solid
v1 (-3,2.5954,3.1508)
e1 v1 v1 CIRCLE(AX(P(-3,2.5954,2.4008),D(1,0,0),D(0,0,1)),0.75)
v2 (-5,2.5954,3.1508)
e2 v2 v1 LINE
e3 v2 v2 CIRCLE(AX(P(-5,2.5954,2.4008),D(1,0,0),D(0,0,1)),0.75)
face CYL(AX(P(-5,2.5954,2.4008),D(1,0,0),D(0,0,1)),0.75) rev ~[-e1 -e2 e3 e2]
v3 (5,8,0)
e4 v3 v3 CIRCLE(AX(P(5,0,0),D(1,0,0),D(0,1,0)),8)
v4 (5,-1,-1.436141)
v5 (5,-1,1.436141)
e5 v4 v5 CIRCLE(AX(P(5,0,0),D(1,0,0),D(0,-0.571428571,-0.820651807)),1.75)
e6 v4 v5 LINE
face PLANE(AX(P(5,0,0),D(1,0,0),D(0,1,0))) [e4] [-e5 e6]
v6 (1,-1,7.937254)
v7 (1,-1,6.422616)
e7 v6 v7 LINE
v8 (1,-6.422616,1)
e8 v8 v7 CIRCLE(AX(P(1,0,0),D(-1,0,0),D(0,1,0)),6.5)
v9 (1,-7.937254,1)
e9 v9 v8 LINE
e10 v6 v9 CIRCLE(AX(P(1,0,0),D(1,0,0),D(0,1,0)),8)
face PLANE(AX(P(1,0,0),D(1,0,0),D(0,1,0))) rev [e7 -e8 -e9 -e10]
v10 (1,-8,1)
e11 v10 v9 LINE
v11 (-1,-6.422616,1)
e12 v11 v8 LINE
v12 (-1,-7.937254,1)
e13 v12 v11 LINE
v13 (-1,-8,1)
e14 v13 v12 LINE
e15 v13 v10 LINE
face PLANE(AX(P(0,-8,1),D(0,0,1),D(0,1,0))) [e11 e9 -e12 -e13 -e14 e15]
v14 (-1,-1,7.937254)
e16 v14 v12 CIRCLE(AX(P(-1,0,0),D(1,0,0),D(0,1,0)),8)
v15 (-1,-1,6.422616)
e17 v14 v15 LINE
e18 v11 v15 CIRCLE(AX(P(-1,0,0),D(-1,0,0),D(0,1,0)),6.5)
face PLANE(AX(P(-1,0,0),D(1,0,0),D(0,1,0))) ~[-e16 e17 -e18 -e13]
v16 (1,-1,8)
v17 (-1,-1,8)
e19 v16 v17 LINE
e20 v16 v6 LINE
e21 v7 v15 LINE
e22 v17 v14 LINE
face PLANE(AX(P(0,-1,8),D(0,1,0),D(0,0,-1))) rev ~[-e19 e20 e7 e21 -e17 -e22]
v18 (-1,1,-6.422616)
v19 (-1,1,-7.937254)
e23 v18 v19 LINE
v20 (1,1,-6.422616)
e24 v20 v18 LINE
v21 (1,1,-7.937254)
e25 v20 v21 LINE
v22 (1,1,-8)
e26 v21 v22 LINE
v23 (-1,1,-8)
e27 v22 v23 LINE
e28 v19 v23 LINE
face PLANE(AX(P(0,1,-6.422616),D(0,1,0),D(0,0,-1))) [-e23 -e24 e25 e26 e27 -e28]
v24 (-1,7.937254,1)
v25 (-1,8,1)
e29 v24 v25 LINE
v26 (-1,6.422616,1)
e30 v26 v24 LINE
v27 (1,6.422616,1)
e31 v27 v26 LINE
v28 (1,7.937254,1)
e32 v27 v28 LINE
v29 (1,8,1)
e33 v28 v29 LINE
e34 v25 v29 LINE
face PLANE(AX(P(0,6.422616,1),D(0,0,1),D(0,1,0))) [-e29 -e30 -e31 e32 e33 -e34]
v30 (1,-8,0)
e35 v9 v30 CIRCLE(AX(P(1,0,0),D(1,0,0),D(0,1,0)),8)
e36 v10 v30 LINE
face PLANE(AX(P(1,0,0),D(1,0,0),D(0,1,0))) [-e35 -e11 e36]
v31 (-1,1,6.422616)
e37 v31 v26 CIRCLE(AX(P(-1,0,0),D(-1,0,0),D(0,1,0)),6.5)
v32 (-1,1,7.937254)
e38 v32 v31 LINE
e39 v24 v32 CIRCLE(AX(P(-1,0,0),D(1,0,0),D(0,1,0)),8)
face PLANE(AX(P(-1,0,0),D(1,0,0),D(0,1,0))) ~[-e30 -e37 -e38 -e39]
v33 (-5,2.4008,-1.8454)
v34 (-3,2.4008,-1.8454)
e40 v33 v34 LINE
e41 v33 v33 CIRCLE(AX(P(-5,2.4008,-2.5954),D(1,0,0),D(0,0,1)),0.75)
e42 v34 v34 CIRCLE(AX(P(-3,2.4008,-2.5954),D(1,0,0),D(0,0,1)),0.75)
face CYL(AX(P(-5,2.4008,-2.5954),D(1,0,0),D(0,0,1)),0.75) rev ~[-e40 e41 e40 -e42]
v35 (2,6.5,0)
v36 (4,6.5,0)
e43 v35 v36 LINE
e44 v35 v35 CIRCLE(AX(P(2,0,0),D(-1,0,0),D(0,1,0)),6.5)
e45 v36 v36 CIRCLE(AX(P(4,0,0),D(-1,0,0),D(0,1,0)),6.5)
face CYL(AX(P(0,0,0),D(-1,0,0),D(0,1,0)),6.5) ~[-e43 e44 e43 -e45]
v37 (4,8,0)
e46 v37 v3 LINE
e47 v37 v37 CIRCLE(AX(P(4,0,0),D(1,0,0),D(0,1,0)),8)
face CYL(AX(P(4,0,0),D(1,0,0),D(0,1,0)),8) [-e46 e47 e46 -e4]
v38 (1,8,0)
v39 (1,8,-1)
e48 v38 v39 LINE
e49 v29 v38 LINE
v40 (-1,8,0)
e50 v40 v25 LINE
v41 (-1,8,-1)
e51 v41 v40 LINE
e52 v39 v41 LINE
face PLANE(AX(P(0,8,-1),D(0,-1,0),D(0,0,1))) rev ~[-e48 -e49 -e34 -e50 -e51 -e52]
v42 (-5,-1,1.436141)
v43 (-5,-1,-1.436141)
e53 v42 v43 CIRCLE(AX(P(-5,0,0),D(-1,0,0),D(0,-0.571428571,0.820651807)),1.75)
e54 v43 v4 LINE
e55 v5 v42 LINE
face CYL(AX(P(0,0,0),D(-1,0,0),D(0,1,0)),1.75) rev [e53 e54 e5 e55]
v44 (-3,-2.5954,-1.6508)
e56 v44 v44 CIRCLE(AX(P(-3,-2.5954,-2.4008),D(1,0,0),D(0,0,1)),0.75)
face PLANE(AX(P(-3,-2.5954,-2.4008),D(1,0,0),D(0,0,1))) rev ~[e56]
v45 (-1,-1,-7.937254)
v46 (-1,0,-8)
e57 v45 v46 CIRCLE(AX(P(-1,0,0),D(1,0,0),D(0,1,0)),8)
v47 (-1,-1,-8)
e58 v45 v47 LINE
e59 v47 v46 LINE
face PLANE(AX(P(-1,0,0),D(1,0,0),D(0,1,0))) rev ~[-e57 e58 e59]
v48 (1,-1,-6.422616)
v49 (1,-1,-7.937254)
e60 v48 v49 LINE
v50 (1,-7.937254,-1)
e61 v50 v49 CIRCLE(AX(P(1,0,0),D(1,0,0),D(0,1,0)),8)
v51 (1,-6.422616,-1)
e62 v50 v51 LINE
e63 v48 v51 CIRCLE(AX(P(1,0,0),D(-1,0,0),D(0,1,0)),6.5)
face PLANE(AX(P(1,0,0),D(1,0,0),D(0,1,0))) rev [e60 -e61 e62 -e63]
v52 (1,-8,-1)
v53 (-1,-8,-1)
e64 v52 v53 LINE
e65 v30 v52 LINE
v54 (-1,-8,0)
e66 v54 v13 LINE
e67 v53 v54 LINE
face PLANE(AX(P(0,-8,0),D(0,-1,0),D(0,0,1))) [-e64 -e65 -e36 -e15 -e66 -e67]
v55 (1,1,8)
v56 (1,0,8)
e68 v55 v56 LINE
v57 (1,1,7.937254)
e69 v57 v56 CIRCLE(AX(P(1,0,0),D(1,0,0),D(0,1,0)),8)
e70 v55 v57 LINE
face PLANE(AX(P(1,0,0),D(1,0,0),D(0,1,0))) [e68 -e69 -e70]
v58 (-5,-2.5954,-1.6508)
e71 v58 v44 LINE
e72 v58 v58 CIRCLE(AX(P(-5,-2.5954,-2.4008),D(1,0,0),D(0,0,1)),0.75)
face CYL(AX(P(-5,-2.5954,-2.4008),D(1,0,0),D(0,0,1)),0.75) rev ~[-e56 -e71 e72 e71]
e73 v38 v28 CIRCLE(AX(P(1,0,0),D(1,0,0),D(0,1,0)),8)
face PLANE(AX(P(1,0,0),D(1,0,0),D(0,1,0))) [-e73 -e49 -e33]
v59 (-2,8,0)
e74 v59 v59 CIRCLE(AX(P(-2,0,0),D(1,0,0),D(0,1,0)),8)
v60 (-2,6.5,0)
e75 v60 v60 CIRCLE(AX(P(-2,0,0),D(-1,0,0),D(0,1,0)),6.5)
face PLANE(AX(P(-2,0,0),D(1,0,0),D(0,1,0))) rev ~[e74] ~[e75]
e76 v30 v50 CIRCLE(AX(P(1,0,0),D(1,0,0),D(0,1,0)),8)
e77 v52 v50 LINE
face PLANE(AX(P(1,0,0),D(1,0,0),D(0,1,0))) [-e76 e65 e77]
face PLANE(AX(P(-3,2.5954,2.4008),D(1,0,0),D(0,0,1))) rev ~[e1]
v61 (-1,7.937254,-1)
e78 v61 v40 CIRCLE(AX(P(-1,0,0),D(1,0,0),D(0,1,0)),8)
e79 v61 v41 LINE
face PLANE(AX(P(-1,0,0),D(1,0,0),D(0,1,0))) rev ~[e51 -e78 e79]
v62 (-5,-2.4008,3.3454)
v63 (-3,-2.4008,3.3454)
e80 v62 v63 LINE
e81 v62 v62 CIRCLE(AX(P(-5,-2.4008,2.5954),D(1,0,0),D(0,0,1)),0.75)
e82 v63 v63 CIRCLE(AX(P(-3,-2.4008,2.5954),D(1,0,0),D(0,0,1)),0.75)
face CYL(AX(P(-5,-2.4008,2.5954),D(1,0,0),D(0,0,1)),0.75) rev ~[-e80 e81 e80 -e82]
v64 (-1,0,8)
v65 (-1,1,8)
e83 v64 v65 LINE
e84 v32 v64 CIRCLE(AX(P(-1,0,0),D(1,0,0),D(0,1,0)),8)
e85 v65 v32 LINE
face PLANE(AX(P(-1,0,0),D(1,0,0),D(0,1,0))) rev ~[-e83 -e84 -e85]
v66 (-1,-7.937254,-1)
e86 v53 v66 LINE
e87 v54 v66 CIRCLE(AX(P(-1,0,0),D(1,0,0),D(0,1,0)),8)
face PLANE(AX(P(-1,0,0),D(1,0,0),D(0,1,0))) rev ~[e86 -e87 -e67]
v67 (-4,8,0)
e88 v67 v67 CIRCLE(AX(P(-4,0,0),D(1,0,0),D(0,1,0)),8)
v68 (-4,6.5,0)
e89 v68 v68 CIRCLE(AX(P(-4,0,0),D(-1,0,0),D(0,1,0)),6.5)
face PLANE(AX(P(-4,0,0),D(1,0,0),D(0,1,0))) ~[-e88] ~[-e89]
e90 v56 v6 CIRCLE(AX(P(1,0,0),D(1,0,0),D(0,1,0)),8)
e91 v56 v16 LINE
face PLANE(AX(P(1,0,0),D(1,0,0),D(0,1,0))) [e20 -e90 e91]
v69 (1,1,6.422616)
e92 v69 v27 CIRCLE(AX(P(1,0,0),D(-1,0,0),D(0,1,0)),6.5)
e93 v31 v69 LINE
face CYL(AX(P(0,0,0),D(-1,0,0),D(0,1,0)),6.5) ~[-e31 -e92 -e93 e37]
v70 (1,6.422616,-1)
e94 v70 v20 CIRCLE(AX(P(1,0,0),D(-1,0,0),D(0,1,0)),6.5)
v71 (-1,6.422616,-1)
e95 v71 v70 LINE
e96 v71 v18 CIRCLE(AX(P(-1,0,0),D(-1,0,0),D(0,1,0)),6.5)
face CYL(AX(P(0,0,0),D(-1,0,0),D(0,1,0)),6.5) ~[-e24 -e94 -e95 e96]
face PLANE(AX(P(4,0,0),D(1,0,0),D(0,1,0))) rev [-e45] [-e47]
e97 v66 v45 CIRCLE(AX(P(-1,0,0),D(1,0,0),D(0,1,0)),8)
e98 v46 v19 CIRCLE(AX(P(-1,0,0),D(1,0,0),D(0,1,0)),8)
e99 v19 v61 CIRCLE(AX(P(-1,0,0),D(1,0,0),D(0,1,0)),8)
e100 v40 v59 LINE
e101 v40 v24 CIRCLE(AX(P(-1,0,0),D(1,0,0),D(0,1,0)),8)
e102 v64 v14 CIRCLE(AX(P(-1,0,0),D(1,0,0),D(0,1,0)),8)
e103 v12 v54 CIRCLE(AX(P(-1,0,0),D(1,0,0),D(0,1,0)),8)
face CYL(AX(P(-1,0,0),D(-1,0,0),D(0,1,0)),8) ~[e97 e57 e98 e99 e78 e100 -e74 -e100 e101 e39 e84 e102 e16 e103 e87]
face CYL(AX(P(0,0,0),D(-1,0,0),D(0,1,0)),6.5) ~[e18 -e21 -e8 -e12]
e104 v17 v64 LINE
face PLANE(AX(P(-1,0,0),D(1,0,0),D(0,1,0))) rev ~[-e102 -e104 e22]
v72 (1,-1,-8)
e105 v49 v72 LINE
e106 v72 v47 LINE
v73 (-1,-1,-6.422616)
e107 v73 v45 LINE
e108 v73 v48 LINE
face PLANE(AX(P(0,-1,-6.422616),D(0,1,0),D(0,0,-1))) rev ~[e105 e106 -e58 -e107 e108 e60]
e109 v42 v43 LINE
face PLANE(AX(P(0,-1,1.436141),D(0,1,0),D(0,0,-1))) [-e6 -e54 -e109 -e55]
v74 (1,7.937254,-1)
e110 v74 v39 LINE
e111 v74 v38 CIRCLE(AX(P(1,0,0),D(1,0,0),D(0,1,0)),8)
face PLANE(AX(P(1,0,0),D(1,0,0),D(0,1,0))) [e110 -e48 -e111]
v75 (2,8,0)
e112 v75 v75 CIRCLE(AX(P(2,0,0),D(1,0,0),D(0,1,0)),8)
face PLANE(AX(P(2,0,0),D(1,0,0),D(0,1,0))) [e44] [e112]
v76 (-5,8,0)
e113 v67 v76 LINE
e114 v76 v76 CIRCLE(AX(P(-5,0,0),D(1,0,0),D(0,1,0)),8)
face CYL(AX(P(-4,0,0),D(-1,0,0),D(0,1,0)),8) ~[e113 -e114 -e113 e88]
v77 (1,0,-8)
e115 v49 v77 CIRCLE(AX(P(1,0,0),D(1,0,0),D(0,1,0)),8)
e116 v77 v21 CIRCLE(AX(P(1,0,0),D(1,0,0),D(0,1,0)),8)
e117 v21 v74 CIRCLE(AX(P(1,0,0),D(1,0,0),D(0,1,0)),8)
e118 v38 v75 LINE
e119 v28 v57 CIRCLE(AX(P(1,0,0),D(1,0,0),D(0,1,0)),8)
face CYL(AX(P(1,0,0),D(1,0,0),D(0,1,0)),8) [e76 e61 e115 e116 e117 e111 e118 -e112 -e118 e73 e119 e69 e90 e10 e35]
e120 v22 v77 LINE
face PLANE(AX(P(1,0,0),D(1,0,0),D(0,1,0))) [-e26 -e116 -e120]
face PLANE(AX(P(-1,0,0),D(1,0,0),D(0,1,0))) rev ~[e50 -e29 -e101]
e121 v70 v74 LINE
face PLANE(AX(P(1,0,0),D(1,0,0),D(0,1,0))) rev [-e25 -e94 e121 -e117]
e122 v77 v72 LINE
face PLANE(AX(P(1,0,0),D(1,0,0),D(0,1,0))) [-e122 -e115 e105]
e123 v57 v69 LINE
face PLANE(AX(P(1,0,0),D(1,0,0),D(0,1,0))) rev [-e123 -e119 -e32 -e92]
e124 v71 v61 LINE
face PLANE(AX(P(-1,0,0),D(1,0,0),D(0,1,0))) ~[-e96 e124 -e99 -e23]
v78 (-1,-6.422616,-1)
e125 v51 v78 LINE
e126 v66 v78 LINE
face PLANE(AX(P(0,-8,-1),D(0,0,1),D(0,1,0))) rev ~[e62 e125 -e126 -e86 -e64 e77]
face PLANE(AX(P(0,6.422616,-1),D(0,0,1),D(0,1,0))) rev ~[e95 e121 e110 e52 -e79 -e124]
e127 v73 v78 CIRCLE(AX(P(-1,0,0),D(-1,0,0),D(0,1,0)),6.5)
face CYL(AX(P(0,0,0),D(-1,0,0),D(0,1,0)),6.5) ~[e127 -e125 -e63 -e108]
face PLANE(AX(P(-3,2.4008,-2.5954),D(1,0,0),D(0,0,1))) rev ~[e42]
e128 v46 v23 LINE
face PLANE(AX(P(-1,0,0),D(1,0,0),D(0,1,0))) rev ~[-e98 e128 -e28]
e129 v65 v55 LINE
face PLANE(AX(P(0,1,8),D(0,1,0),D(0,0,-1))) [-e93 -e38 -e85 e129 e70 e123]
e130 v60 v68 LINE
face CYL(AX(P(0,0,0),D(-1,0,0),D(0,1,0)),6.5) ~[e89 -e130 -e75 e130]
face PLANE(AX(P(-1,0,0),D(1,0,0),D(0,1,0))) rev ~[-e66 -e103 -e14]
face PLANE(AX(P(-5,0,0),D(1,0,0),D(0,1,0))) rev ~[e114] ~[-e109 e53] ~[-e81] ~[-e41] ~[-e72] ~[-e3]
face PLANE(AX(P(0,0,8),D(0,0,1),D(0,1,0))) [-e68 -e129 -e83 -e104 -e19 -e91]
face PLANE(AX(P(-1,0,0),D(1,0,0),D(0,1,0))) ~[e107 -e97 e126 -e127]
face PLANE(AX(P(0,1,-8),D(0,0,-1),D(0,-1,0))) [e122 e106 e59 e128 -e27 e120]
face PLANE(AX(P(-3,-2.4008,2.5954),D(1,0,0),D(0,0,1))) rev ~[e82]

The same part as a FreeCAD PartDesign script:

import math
import FreeCAD as App
import Part
import Sketcher

V = App.Vector
Q = App.Units.Quantity


def add_polygon(sketch, points):
    """Adds a closed chain of lines whose ends are joined by coincident constraints."""
    first, n = sketch.GeometryCount, len(points)
    for a, b in zip(points, points[1:] + points[:1]):
        sketch.addGeometry(Part.LineSegment(App.Vector(*a, 0), App.Vector(*b, 0)), False)
    for i in range(n):
        sketch.addConstraint(Sketcher.Constraint("Coincident", first + i, 2, first + (i + 1) % n, 1))

doc = App.newDocument("Part")
body = doc.addObject("PartDesign::Body", "Body")

sketch1 = body.newObject("Sketcher::SketchObject", "Sketch")
sketch1.AttachmentSupport = (doc.getObject("YZ_Plane"), [""])
sketch1.MapMode = "FlatFace"
sketch1.addGeometry([
    Part.Circle(V(0, 0, 0), V(0, 0, 1), 6.5),
    Part.LineSegment(V(-1, -1.4, 0), V(-1, 1.4, 0)),
    Part.ArcOfCircle(Part.Circle(V(0, 0, 0), V(0, 0, 1), 1.8), math.radians(-125), math.radians(125)),
], False)
sketch1.addConstraint([
    Sketcher.Constraint("Coincident", 1, 1, 2, 1),
    Sketcher.Constraint("Coincident", 2, 2, 1, 2),
    Sketcher.Constraint("Vertical", 1),
    Sketcher.Constraint("Coincident", 0, 3, -1, 1),
    Sketcher.Constraint("Coincident", 2, 3, -1, 1),
    Sketcher.Constraint("Diameter", 0, Q("13 mm")),
    Sketcher.Constraint("Radius", 2, Q("1.75 mm")),
    Sketcher.Constraint("DistanceX", 1, 1, -1, 1, Q("1 mm")),
])
pad1 = body.newObject("PartDesign::Pad", "Pad")
pad1.Profile = sketch1
pad1.Length = 10
pad1.Midplane = True

sketch2 = body.newObject("Sketcher::SketchObject", "Sketch001")
sketch2.AttachmentSupport = (doc.getObject("YZ_Plane"), [""])
sketch2.MapMode = "FlatFace"
sketch2.addGeometry([
    Part.LineSegment(V(8, -1, 0), V(8, 1, 0)),
    Part.LineSegment(V(8, 1, 0), V(6.4, 1, 0)),
    Part.ArcOfCircle(Part.Circle(V(0, 0, 0), V(0, 0, 1), 6.5), math.radians(-8.85), math.radians(8.85)),
    Part.LineSegment(V(6.4, -1, 0), V(8, -1, 0)),
    Part.LineSegment(V(1, 6.4, 0), V(1, 8, 0)),
    Part.LineSegment(V(1, 8, 0), V(-1, 8, 0)),
    Part.LineSegment(V(-1, 8, 0), V(-1, 6.4, 0)),
    Part.ArcOfCircle(Part.Circle(V(0, 0, 0), V(0, 0, 1), 6.5), math.radians(81.15), math.radians(98.85)),
    Part.LineSegment(V(1, -8, 0), V(1, -6.4, 0)),
    Part.ArcOfCircle(Part.Circle(V(0, 0, 0), V(0, 0, 1), 6.5), math.radians(-98.85), math.radians(-81.15)),
    Part.LineSegment(V(-1, -6.4, 0), V(-1, -8, 0)),
    Part.LineSegment(V(-1, -8, 0), V(1, -8, 0)),
    Part.LineSegment(V(-6.4, 1, 0), V(-8, 1, 0)),
    Part.LineSegment(V(-8, 1, 0), V(-8, -1, 0)),
    Part.LineSegment(V(-8, -1, 0), V(-6.4, -1, 0)),
    Part.ArcOfCircle(Part.Circle(V(0, 0, 0), V(0, 0, 1), 6.5), math.radians(171.15), math.radians(188.85)),
], False)
sketch2.addConstraint([
    Sketcher.Constraint("Coincident", 0, 2, 1, 1),
    Sketcher.Constraint("Coincident", 1, 2, 2, 2),
    Sketcher.Constraint("Coincident", 2, 1, 3, 1),
    Sketcher.Constraint("Coincident", 3, 2, 0, 1),
    Sketcher.Constraint("Coincident", 4, 2, 5, 1),
    Sketcher.Constraint("Coincident", 5, 2, 6, 1),
    Sketcher.Constraint("Coincident", 6, 2, 7, 2),
    Sketcher.Constraint("Coincident", 7, 1, 4, 1),
    Sketcher.Constraint("Coincident", 8, 2, 9, 2),
    Sketcher.Constraint("Coincident", 9, 1, 10, 1),
    Sketcher.Constraint("Coincident", 10, 2, 11, 1),
    Sketcher.Constraint("Coincident", 11, 2, 8, 1),
    Sketcher.Constraint("Coincident", 12, 2, 13, 1),
    Sketcher.Constraint("Coincident", 13, 2, 14, 1),
    Sketcher.Constraint("Coincident", 14, 2, 15, 2),
    Sketcher.Constraint("Coincident", 15, 1, 12, 1),
    Sketcher.Constraint("Vertical", 0),
    Sketcher.Constraint("Horizontal", 1),
    Sketcher.Constraint("Horizontal", 3),
    Sketcher.Constraint("Vertical", 4),
    Sketcher.Constraint("Horizontal", 5),
    Sketcher.Constraint("Vertical", 6),
    Sketcher.Constraint("Vertical", 8),
    Sketcher.Constraint("Vertical", 10),
    Sketcher.Constraint("Horizontal", 11),
    Sketcher.Constraint("Horizontal", 12),
    Sketcher.Constraint("Vertical", 13),
    Sketcher.Constraint("Horizontal", 14),
    Sketcher.Constraint("Coincident", 2, 3, -1, 1),
    Sketcher.Constraint("Coincident", 7, 3, -1, 1),
    Sketcher.Constraint("Coincident", 9, 3, -1, 1),
    Sketcher.Constraint("Coincident", 15, 3, -1, 1),
    Sketcher.Constraint("Equal", 2, 7),
    Sketcher.Constraint("Equal", 7, 9),
    Sketcher.Constraint("Equal", 9, 15),
    Sketcher.Constraint("Symmetric", 4, 2, 10, 2, -1, 1),
    Sketcher.Constraint("Symmetric", 3, 2, 12, 2, -1, 1),
    Sketcher.Constraint("Horizontal", 6, 2, 7, 1),
    Sketcher.Constraint("Horizontal", 8, 2, 9, 1),
    Sketcher.Constraint("Horizontal", 1, 2, 12, 2),
    Sketcher.Constraint("Horizontal", 3, 2, 13, 2),
    Sketcher.Constraint("Equal", 11, 0),
    Sketcher.Constraint("Equal", 14, 4),
    Sketcher.Constraint("Radius", 2, Q("6.5 mm")),
    Sketcher.Constraint("DistanceX", 5, 2, 5, 1, Q("2 mm")),
    Sketcher.Constraint("DistanceX", -1, 1, 0, 2, Q("8 mm")),
])
pad2 = body.newObject("PartDesign::Pad", "Pad001")
pad2.Profile = sketch2
pad2.Length = 2
pad2.Midplane = True

sketch3 = body.newObject("Sketcher::SketchObject", "Sketch002")
sketch3.AttachmentSupport = (doc.getObject("XY_Plane"), [""])
sketch3.MapMode = "FlatFace"
add_polygon(sketch3, [(4, 6), (5, 6), (5, 8), (4, 8)])
add_polygon(sketch3, [(1, 8), (1, 6), (2, 6), (2, 8)])
add_polygon(sketch3, [(-2, 6), (-1, 6), (-1, 8), (-2, 8)])
add_polygon(sketch3, [(-5, 8), (-5, 6), (-4, 6), (-4, 8)])
sketch3.addConstraint([
    Sketcher.Constraint("Horizontal", 0),
    Sketcher.Constraint("Vertical", 1),
    Sketcher.Constraint("Horizontal", 2),
    Sketcher.Constraint("Vertical", 3),
    Sketcher.Constraint("Vertical", 4),
    Sketcher.Constraint("Horizontal", 5),
    Sketcher.Constraint("Vertical", 6),
    Sketcher.Constraint("Horizontal", 7),
    Sketcher.Constraint("Horizontal", 8),
    Sketcher.Constraint("Vertical", 9),
    Sketcher.Constraint("Horizontal", 10),
    Sketcher.Constraint("Vertical", 11),
    Sketcher.Constraint("Vertical", 12),
    Sketcher.Constraint("Horizontal", 13),
    Sketcher.Constraint("Vertical", 14),
    Sketcher.Constraint("Horizontal", 15),
    Sketcher.Constraint("Symmetric", 4, 2, 8, 2, -2),
    Sketcher.Constraint("Symmetric", 6, 2, 10, 2, -2),
    Sketcher.Constraint("Symmetric", 0, 2, 12, 2, -2),
    Sketcher.Constraint("Symmetric", 2, 2, 14, 2, -2),
    Sketcher.Constraint("Horizontal", 3, 2, 4, 2),
    Sketcher.Constraint("Horizontal", 2, 2, 6, 2),
    Sketcher.Constraint("Equal", 2, 5),
    Sketcher.Constraint("DistanceX", 0, 1, 0, 2, Q("1 mm")),
    Sketcher.Constraint("DistanceY", 1, 1, 1, 2, Q("2 mm")),
    Sketcher.Constraint("DistanceX", -1, 1, 0, 2, Q("5 mm")),
    Sketcher.Constraint("DistanceY", -1, 1, 0, 2, Q("6 mm")),
    Sketcher.Constraint("DistanceX", -1, 1, 4, 2, Q("1 mm")),
])
revolution = body.newObject("PartDesign::Revolution", "Revolution")
revolution.Profile = sketch3
revolution.ReferenceAxis = (sketch3, ["H_Axis"])
revolution.Angle = 360

sketch4 = body.newObject("Sketcher::SketchObject", "Sketch003")
sketch4.AttachmentSupport = (doc.getObject("YZ_Plane"), [""])
sketch4.MapMode = "FlatFace"
sketch4.AttachmentOffset = App.Placement(V(0, 0, -5), App.Rotation())
sketch4.addGeometry([
    Part.Circle(V(2.6, 2.4, 0), V(0, 0, 1), 0.8),
    Part.Circle(V(2.4, -2.6, 0), V(0, 0, 1), 0.8),
    Part.Circle(V(-2.6, -2.4, 0), V(0, 0, 1), 0.8),
    Part.Circle(V(-2.4, 2.6, 0), V(0, 0, 1), 0.8),
], False)
sketch4.addConstraint([
    Sketcher.Constraint("Equal", 0, 1),
    Sketcher.Constraint("Equal", 1, 2),
    Sketcher.Constraint("Equal", 2, 3),
    Sketcher.Constraint("Symmetric", 0, 3, 2, 3, -1, 1),
    Sketcher.Constraint("Symmetric", 1, 3, 3, 3, -1, 1),
    Sketcher.Constraint("Diameter", 0, Q("1.5 mm")),
    Sketcher.Constraint("DistanceX", -1, 1, 0, 3, Q("2.5954 mm")),
    Sketcher.Constraint("DistanceY", -1, 1, 0, 3, Q("2.4008 mm")),
    Sketcher.Constraint("DistanceX", -1, 1, 1, 3, Q("2.4008 mm")),
    Sketcher.Constraint("DistanceY", 1, 3, -1, 1, Q("2.5954 mm")),
])
doc.recompute()
hole = body.newObject("PartDesign::Hole", "Hole")
hole.Profile = sketch4
hole.ThreadType = "None"
hole.Diameter = 1.5
hole.DepthType = "Dimension"
hole.Depth = 2
hole.DrillPoint = "Flat"
hole.Reversed = True

doc.recompute()
